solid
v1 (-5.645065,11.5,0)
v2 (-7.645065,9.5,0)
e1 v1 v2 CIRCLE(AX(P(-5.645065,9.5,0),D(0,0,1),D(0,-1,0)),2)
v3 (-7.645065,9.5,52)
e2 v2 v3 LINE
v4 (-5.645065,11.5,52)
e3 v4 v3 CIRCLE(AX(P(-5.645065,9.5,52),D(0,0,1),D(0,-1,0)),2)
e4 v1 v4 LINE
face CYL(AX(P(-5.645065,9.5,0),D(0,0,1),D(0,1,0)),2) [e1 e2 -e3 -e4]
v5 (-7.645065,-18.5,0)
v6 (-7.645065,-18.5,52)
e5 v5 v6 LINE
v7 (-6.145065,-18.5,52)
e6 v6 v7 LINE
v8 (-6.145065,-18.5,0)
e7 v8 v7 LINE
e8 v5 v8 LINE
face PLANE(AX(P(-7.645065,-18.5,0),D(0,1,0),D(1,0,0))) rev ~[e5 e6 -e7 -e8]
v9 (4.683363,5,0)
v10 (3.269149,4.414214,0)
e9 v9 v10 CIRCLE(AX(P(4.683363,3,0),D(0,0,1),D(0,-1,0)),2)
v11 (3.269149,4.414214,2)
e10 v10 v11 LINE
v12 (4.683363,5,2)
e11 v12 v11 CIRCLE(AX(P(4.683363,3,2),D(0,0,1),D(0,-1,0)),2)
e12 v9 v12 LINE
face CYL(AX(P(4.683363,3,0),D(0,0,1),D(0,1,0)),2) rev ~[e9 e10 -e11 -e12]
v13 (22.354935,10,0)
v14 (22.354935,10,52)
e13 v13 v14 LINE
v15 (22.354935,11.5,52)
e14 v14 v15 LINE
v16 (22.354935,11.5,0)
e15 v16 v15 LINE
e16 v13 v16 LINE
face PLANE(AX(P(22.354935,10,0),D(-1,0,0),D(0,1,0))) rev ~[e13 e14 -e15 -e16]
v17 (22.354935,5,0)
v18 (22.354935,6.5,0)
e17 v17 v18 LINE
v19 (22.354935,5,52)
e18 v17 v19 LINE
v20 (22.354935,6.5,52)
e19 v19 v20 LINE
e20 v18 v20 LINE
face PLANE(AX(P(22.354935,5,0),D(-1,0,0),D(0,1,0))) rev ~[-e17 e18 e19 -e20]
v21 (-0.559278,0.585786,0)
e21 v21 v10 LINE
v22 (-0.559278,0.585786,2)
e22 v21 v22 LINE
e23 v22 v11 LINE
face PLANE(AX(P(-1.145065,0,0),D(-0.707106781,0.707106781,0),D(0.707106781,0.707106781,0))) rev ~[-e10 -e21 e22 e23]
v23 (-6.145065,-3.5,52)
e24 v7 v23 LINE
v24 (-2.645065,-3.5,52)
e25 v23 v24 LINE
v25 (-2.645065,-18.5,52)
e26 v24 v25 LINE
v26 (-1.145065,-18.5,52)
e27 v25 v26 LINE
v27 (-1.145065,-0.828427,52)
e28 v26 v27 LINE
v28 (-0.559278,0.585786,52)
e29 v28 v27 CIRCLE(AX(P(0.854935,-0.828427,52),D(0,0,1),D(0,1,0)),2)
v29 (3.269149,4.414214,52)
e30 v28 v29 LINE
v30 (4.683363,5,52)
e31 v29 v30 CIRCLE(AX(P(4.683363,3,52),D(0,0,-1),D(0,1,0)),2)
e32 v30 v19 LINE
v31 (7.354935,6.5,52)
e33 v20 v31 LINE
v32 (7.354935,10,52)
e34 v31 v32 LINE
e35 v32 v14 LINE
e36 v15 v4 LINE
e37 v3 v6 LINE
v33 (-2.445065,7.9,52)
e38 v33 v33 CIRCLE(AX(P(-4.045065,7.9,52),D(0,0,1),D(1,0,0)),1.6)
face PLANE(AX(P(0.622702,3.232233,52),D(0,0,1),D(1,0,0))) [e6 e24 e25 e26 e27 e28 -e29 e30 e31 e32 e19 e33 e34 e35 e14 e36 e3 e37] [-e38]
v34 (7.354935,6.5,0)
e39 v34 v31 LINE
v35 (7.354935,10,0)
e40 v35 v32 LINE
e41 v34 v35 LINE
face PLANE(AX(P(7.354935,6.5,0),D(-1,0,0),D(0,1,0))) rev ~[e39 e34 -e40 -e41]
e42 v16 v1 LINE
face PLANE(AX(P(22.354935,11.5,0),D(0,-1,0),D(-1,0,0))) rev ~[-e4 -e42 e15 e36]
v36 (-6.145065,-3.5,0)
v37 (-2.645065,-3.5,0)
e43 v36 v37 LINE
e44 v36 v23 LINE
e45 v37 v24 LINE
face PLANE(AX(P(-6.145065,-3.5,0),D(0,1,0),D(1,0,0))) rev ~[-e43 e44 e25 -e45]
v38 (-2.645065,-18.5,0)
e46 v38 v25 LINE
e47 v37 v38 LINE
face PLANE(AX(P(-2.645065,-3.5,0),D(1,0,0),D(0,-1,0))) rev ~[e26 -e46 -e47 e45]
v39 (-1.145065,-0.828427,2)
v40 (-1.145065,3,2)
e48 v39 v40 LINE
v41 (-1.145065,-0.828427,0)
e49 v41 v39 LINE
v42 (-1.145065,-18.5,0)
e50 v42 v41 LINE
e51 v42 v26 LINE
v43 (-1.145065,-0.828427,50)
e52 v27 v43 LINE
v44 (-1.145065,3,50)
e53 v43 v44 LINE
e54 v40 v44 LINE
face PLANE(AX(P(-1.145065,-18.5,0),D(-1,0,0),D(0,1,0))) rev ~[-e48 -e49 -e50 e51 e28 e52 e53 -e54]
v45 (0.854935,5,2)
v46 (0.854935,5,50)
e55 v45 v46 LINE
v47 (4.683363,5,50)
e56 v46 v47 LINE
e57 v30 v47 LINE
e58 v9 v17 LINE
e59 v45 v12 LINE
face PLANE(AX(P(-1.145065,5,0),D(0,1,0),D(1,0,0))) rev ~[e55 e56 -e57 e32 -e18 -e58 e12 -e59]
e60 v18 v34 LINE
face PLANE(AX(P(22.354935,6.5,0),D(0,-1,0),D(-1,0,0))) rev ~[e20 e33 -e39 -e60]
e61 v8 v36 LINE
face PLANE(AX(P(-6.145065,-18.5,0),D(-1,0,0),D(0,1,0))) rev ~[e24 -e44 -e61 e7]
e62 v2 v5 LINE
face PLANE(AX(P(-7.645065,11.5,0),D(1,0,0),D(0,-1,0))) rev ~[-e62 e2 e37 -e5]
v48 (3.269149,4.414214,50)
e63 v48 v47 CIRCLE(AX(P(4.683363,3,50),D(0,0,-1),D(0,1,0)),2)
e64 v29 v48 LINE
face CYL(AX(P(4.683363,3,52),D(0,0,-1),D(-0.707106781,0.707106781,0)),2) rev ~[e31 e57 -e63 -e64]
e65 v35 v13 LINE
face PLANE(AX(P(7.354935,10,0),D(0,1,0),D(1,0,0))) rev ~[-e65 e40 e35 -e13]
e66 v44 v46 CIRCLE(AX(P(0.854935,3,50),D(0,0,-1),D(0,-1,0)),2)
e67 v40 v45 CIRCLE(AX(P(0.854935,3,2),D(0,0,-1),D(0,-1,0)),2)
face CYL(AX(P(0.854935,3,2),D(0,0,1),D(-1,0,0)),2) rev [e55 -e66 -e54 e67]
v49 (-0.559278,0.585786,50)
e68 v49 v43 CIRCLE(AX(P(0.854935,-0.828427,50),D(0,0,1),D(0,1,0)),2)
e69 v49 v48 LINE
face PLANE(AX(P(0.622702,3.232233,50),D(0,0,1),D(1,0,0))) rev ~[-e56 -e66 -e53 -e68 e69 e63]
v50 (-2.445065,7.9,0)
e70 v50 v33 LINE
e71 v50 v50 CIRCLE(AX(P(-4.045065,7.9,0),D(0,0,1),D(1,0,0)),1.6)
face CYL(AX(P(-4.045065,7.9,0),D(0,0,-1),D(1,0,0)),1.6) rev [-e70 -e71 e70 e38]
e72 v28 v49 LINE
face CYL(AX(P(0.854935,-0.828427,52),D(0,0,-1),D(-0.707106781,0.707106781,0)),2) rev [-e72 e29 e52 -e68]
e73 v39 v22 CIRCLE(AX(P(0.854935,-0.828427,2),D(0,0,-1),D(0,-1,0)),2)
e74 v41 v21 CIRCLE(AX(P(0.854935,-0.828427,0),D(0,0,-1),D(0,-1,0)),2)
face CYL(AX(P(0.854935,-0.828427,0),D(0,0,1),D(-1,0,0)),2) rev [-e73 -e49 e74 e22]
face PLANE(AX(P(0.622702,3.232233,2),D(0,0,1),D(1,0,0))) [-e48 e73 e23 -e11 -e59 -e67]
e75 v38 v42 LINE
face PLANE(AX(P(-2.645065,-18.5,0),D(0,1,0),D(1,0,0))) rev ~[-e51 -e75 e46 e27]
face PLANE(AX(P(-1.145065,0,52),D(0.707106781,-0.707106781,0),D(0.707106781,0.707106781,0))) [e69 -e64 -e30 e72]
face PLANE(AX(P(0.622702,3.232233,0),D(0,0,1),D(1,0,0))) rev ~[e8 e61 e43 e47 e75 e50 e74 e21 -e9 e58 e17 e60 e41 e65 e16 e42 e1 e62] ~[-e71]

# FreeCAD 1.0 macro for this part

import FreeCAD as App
import Part
import Sketcher

V = App.Vector
Q = App.Units.Quantity


def edges_at(feature, points):
    """Names of the edges that pass closest to the given points."""
    edges = feature.Shape.Edges
    near = lambda p: min(range(len(edges)), key=lambda i: edges[i].distToShape(Part.Vertex(*p))[0])
    return sorted({f"Edge{near(p) + 1}" for p in points})


def add_polygon(sketch, points):
    """Adds a closed chain of lines whose ends are joined by coincident constraints."""
    first, n = sketch.GeometryCount, len(points)
    for a, b in zip(points, points[1:] + points[:1]):
        sketch.addGeometry(Part.LineSegment(App.Vector(*a, 0), App.Vector(*b, 0)), False)
    for i in range(n):
        sketch.addConstraint(Sketcher.Constraint("Coincident", first + i, 2, first + (i + 1) % n, 1))

doc = App.newDocument("Part")
body = doc.addObject("PartDesign::Body", "Body")

# Sketch on XY plane
sketch1 = body.newObject("Sketcher::SketchObject", "Sketch")
sketch1.AttachmentSupport = (doc.getObject("XY_Plane"), [""])
sketch1.MapMode = "FlatFace"
add_polygon(sketch1, [(22.4, 10), (22.4, 11.5), (-7.6, 11.5), (-7.6, -18.5), (-6.1, -18.5), (-6.1, -3.5), (-2.6, -3.5), (-2.6, -18.5), (-1.1, -18.5), (-1.1, 5), (22.4, 5), (22.4, 6.5), (7.4, 6.5), (7.4, 10)])  # lines 0-13
sketch1.addGeometry(Part.Circle(V(-4, 7.9, 0), V(0, 0, 1), 1.6), False)  # 14
sketch1.addConstraint([
    Sketcher.Constraint("Vertical", 0),
    Sketcher.Constraint("Horizontal", 1),
    Sketcher.Constraint("Vertical", 2),
    Sketcher.Constraint("Horizontal", 3),
    Sketcher.Constraint("Vertical", 4),
    Sketcher.Constraint("Horizontal", 5),
    Sketcher.Constraint("Vertical", 6),
    Sketcher.Constraint("Horizontal", 7),
    Sketcher.Constraint("Vertical", 8),
    Sketcher.Constraint("Horizontal", 9),
    Sketcher.Constraint("Vertical", 10),
    Sketcher.Constraint("Horizontal", 11),
    Sketcher.Constraint("Vertical", 12),
    Sketcher.Constraint("Horizontal", 13),
    Sketcher.Constraint("Horizontal", 3, 2, 6, 2),
    Sketcher.Constraint("Vertical", 0, 2, 9, 2),
    Sketcher.Constraint("Equal", 3, 7),
    Sketcher.Constraint("Equal", 7, 0),
    Sketcher.Constraint("Equal", 1, 2),
    Sketcher.Constraint("Equal", 13, 4),
    Sketcher.Constraint("Equal", 9, 8),
    Sketcher.Constraint("Equal", 0, 10),
    Sketcher.Constraint("Diameter", 14, Q("3.2 mm")),
    Sketcher.Constraint("DistanceX", 1, 2, 1, 1, Q("30 mm")),
    Sketcher.Constraint("DistanceX", 11, 2, 11, 1, Q("15 mm")),
    Sketcher.Constraint("DistanceX", 3, 1, 3, 2, Q("1.5 mm")),
    Sketcher.Constraint("DistanceX", 5, 1, 5, 2, Q("3.5 mm")),
    Sketcher.Constraint("DistanceY", -1, 1, 8, 2, Q("5 mm")),
    Sketcher.Constraint("DistanceY", -1, 1, 14, 3, Q("7.9 mm")),
    Sketcher.Constraint("DistanceX", 14, 3, 0, 2, Q("26.4 mm")),
    Sketcher.Constraint("DistanceX", 14, 3, -1, 1, Q("4.045065 mm")),
])
pad1 = body.newObject("PartDesign::Pad", "Pad")
pad1.Profile = sketch1
pad1.Length = 52

# Sketch on XY plane
sketch2 = body.newObject("Sketcher::SketchObject", "Sketch001")
sketch2.AttachmentSupport = (doc.getObject("XY_Plane"), [""])
sketch2.MapMode = "FlatFace"
add_polygon(sketch2, [(-1, 0), (4, 5), (-1, 5)])  # lines 0-2
sketch2.addConstraint([
    Sketcher.Constraint("Horizontal", 1),
    Sketcher.Constraint("Vertical", 2),
    Sketcher.Constraint("PointOnObject", 2, 2, -1),
    Sketcher.Constraint("Equal", 1, 2),
    Sketcher.Constraint("DistanceX", 1, 2, 1, 1, Q("5 mm")),
    Sketcher.Constraint("DistanceX", -1, 1, 0, 2, Q("3.854935 mm")),
])
pad2 = body.newObject("PartDesign::Pad", "Pad001")
pad2.Profile = sketch2
pad2.Length = 2

# Sketch on XY plane
sketch3 = body.newObject("Sketcher::SketchObject", "Sketch002")
sketch3.AttachmentSupport = (doc.getObject("XY_Plane"), [""])
sketch3.MapMode = "FlatFace"
sketch3.AttachmentOffset = App.Placement(V(0, 0, 52), App.Rotation())
add_polygon(sketch3, [(-1, 0), (4, 5), (-1, 5)])  # lines 0-2
sketch3.addConstraint([
    Sketcher.Constraint("Horizontal", 1),
    Sketcher.Constraint("Vertical", 2),
    Sketcher.Constraint("PointOnObject", 2, 2, -1),
    Sketcher.Constraint("Equal", 1, 2),
    Sketcher.Constraint("DistanceX", 1, 2, 1, 1, Q("5 mm")),
    Sketcher.Constraint("DistanceX", -1, 1, 0, 2, Q("3.854935 mm")),
])
pad3 = body.newObject("PartDesign::Pad", "Pad002")
pad3.Profile = sketch3
pad3.Length = 2
pad3.Reversed = True
doc.recompute()

fillet = body.newObject("PartDesign::Fillet", "Fillet")
fillet.Base = (pad3, edges_at(pad3, [
    (-1.145, 5, 26),
    (3.855, 5, 1),
    (-1.145, 0, 1),
    (-1.145, 0, 51),
    (3.855, 5, 51),
    (-7.645, 11.5, 26),
]))
fillet.Radius = 2

doc.recompute()
